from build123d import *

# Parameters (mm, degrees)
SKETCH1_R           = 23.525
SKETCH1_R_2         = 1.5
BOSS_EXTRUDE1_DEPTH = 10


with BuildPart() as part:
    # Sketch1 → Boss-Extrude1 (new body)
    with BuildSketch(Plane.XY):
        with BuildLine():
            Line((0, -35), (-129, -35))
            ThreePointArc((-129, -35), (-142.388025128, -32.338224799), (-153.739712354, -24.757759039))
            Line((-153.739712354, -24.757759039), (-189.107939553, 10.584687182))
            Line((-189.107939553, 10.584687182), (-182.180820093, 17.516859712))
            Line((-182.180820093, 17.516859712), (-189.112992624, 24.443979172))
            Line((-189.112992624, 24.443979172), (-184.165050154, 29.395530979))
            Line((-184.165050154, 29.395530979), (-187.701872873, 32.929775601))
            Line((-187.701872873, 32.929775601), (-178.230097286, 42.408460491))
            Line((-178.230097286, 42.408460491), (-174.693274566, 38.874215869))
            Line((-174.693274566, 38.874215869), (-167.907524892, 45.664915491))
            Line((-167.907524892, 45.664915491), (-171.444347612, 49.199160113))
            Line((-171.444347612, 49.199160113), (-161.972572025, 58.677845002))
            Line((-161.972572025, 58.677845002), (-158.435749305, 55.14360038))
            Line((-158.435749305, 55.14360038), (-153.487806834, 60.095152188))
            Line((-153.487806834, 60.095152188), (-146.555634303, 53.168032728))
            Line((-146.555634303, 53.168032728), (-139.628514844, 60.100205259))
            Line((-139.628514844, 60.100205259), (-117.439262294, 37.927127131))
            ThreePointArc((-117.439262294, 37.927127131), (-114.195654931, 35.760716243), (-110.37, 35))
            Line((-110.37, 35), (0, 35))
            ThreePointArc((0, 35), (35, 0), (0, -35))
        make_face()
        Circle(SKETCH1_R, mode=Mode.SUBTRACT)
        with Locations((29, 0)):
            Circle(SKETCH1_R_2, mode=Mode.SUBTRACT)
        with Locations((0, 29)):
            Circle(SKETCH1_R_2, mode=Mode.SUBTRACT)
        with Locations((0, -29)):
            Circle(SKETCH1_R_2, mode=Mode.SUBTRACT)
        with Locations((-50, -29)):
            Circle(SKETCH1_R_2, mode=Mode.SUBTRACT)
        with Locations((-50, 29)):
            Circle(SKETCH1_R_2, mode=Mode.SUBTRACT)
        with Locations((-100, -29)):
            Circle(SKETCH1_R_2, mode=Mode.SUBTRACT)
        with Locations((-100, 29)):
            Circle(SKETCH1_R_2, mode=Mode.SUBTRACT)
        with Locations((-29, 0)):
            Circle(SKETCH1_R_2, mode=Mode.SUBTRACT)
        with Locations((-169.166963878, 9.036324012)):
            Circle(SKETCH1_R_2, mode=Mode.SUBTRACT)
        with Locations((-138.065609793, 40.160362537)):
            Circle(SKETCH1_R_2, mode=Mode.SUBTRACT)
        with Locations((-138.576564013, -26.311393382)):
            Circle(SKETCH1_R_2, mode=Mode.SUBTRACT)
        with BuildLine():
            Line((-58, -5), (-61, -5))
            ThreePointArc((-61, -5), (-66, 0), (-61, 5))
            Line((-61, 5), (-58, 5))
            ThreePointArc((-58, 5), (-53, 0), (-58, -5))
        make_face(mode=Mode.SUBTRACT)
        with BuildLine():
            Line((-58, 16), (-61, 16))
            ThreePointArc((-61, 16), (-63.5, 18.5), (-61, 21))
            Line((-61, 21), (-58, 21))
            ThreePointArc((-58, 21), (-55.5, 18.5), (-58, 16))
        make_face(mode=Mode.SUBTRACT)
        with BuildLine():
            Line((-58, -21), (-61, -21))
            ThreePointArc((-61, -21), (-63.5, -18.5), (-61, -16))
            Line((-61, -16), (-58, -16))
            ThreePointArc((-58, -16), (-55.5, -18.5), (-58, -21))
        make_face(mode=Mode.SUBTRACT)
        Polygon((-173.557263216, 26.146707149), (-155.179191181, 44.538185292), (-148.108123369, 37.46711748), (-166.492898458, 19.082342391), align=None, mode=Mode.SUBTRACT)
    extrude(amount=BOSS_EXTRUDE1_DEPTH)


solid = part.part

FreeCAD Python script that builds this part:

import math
import FreeCAD as App
import Part
import Sketcher
from FreeCAD import Vector
Q = App.Units.Quantity


def add_polygon(sketch, points):
    """Adds a closed chain of lines whose ends are joined by coincident constraints."""
    first, n = sketch.GeometryCount, len(points)
    for a, b in zip(points, points[1:] + points[:1]):
        sketch.addGeometry(Part.LineSegment(App.Vector(*a, 0), App.Vector(*b, 0)), False)
    for i in range(n):
        sketch.addConstraint(Sketcher.Constraint("Coincident", first + i, 2, first + (i + 1) % n, 1))

doc = App.newDocument("Part")
body = doc.addObject("PartDesign::Body", "Body")

# Sketch on XY plane
sketch1 = body.newObject("Sketcher::SketchObject", "Sketch")
sketch1.AttachmentSupport = (doc.getObject("XY_Plane"), [""])
sketch1.MapMode = "FlatFace"
sketch1.addGeometry(Part.LineSegment(Vector(-129, -35, 0), Vector(0, -35, 0)), False)  # 0
sketch1.addGeometry(Part.ArcOfCircle(Part.Circle(Vector(0, 0, 0), Vector(0, 0, 1), 35), math.radians(-90), math.radians(90)), False)  # 1
sketch1.addGeometry(Part.LineSegment(Vector(0, 35, 0), Vector(-110.4, 35, 0)), False)  # 2
sketch1.addGeometry(Part.ArcOfCircle(Part.Circle(Vector(-110.4, 45, 0), Vector(0, 0, 1), 10), math.radians(-135), math.radians(-90)), False)  # 3
sketch1.addGeometry(Part.LineSegment(Vector(-117.4, 37.9, 0), Vector(-139.6, 60.1, 0)), False)  # 4
sketch1.addGeometry(Part.LineSegment(Vector(-139.6, 60.1, 0), Vector(-146.6, 53.2, 0)), False)  # 5
sketch1.addGeometry(Part.LineSegment(Vector(-146.6, 53.2, 0), Vector(-153.5, 60.1, 0)), False)  # 6
sketch1.addGeometry(Part.LineSegment(Vector(-153.5, 60.1, 0), Vector(-158.4, 55.1, 0)), False)  # 7
sketch1.addGeometry(Part.LineSegment(Vector(-158.4, 55.1, 0), Vector(-162, 58.7, 0)), False)  # 8
sketch1.addGeometry(Part.LineSegment(Vector(-162, 58.7, 0), Vector(-171.4, 49.2, 0)), False)  # 9
sketch1.addGeometry(Part.LineSegment(Vector(-171.4, 49.2, 0), Vector(-167.9, 45.7, 0)), False)  # 10
sketch1.addGeometry(Part.LineSegment(Vector(-167.9, 45.7, 0), Vector(-174.7, 38.9, 0)), False)  # 11
sketch1.addGeometry(Part.LineSegment(Vector(-174.7, 38.9, 0), Vector(-178.2, 42.4, 0)), False)  # 12
sketch1.addGeometry(Part.LineSegment(Vector(-178.2, 42.4, 0), Vector(-187.7, 32.9, 0)), False)  # 13
sketch1.addGeometry(Part.LineSegment(Vector(-187.7, 32.9, 0), Vector(-184.2, 29.4, 0)), False)  # 14
sketch1.addGeometry(Part.LineSegment(Vector(-184.2, 29.4, 0), Vector(-189.1, 24.4, 0)), False)  # 15
sketch1.addGeometry(Part.LineSegment(Vector(-189.1, 24.4, 0), Vector(-182.2, 17.5, 0)), False)  # 16
sketch1.addGeometry(Part.LineSegment(Vector(-182.2, 17.5, 0), Vector(-189.1, 10.6, 0)), False)  # 17
sketch1.addGeometry(Part.LineSegment(Vector(-189.1, 10.6, 0), Vector(-153.7, -24.8, 0)), False)  # 18
sketch1.addGeometry(Part.ArcOfCircle(Part.Circle(Vector(-129, 0, 0), Vector(0, 0, 1), 35), math.radians(-135), math.radians(-90)), False)  # 19
sketch1.addGeometry(Part.Circle(Vector(0, -29, 0), Vector(0, 0, 1), 1.5), False)  # 20
sketch1.addGeometry(Part.Circle(Vector(-50, -29, 0), Vector(0, 0, 1), 1.5), False)  # 21
sketch1.addGeometry(Part.LineSegment(Vector(-58, -21, 0), Vector(-61, -21, 0)), False)  # 22
sketch1.addGeometry(Part.ArcOfCircle(Part.Circle(Vector(-61, -18.5, 0), Vector(0, 0, 1), 2.5), math.radians(90), math.radians(270)), False)  # 23
sketch1.addGeometry(Part.LineSegment(Vector(-61, -16, 0), Vector(-58, -16, 0)), False)  # 24
sketch1.addGeometry(Part.ArcOfCircle(Part.Circle(Vector(-58, -18.5, 0), Vector(0, 0, 1), 2.5), math.radians(-90), math.radians(90)), False)  # 25
sketch1.addGeometry(Part.Circle(Vector(29, 0, 0), Vector(0, 0, 1), 1.5), False)  # 26
sketch1.addGeometry(Part.Circle(Vector(0, 0, 0), Vector(0, 0, 1), 23.5), False)  # 27
sketch1.addGeometry(Part.Circle(Vector(-29, 0, 0), Vector(0, 0, 1), 1.5), False)  # 28
sketch1.addGeometry(Part.LineSegment(Vector(-58, -5, 0), Vector(-61, -5, 0)), False)  # 29
sketch1.addGeometry(Part.ArcOfCircle(Part.Circle(Vector(-61, 0, 0), Vector(0, 0, 1), 5), math.radians(90), math.radians(270)), False)  # 30
sketch1.addGeometry(Part.LineSegment(Vector(-61, 5, 0), Vector(-58, 5, 0)), False)  # 31
sketch1.addGeometry(Part.ArcOfCircle(Part.Circle(Vector(-58, 0, 0), Vector(0, 0, 1), 5), math.radians(-90), math.radians(90)), False)  # 32
sketch1.addGeometry(Part.Circle(Vector(-100, -29, 0), Vector(0, 0, 1), 1.5), False)  # 33
sketch1.addGeometry(Part.Circle(Vector(-138.6, -26.3, 0), Vector(0, 0, 1), 1.5), False)  # 34
sketch1.addGeometry(Part.LineSegment(Vector(-58, 16, 0), Vector(-61, 16, 0)), False)  # 35
sketch1.addGeometry(Part.ArcOfCircle(Part.Circle(Vector(-61, 18.5, 0), Vector(0, 0, 1), 2.5), math.radians(90), math.radians(270)), False)  # 36
sketch1.addGeometry(Part.LineSegment(Vector(-61, 21, 0), Vector(-58, 21, 0)), False)  # 37
sketch1.addGeometry(Part.ArcOfCircle(Part.Circle(Vector(-58, 18.5, 0), Vector(0, 0, 1), 2.5), math.radians(-90), math.radians(90)), False)  # 38
sketch1.addGeometry(Part.Circle(Vector(0, 29, 0), Vector(0, 0, 1), 1.5), False)  # 39
sketch1.addGeometry(Part.Circle(Vector(-50, 29, 0), Vector(0, 0, 1), 1.5), False)  # 40
sketch1.addGeometry(Part.Circle(Vector(-169.2, 9, 0), Vector(0, 0, 1), 1.5), False)  # 41
sketch1.addGeometry(Part.Circle(Vector(-100, 29, 0), Vector(0, 0, 1), 1.5), False)  # 42
add_polygon(sketch1, [(-173.6, 26.1), (-155.2, 44.5), (-148.1, 37.5), (-166.5, 19.1)])  # lines 43-46
sketch1.addGeometry(Part.Circle(Vector(-138.1, 40.2, 0), Vector(0, 0, 1), 1.5), False)  # 47
sketch1.addConstraint([
    Sketcher.Constraint("Tangent", 0, 2, 1, 1),
    Sketcher.Constraint("Tangent", 1, 2, 2, 1),
    Sketcher.Constraint("Tangent", 2, 2, 3, 2),
    Sketcher.Constraint("Coincident", 3, 1, 4, 1),
    Sketcher.Constraint("Coincident", 4, 2, 5, 1),
    Sketcher.Constraint("Coincident", 5, 2, 6, 1),
    Sketcher.Constraint("Coincident", 6, 2, 7, 1),
    Sketcher.Constraint("Coincident", 7, 2, 8, 1),
    Sketcher.Constraint("Coincident", 8, 2, 9, 1),
    Sketcher.Constraint("Coincident", 9, 2, 10, 1),
    Sketcher.Constraint("Coincident", 10, 2, 11, 1),
    Sketcher.Constraint("Coincident", 11, 2, 12, 1),
    Sketcher.Constraint("Coincident", 12, 2, 13, 1),
    Sketcher.Constraint("Coincident", 13, 2, 14, 1),
    Sketcher.Constraint("Coincident", 14, 2, 15, 1),
    Sketcher.Constraint("Coincident", 15, 2, 16, 1),
    Sketcher.Constraint("Coincident", 16, 2, 17, 1),
    Sketcher.Constraint("Coincident", 17, 2, 18, 1),
    Sketcher.Constraint("Tangent", 18, 2, 19, 1),
    Sketcher.Constraint("Tangent", 19, 2, 0, 1),
    Sketcher.Constraint("Tangent", 22, 2, 23, 2),
    Sketcher.Constraint("Tangent", 23, 1, 24, 1),
    Sketcher.Constraint("Tangent", 24, 2, 25, 2),
    Sketcher.Constraint("Tangent", 25, 1, 22, 1),
    Sketcher.Constraint("Tangent", 29, 2, 30, 2),
    Sketcher.Constraint("Tangent", 30, 1, 31, 1),
    Sketcher.Constraint("Tangent", 31, 2, 32, 2),
    Sketcher.Constraint("Tangent", 32, 1, 29, 1),
    Sketcher.Constraint("Tangent", 35, 2, 36, 2),
    Sketcher.Constraint("Tangent", 36, 1, 37, 1),
    Sketcher.Constraint("Tangent", 37, 2, 38, 2),
    Sketcher.Constraint("Tangent", 38, 1, 35, 1),
    Sketcher.Constraint("Horizontal", 0),
    Sketcher.Constraint("Horizontal", 2),
    Sketcher.Constraint("Horizontal", 22),
    Sketcher.Constraint("Horizontal", 24),
    Sketcher.Constraint("Horizontal", 29),
    Sketcher.Constraint("Horizontal", 31),
    Sketcher.Constraint("Horizontal", 35),
    Sketcher.Constraint("Horizontal", 37),
    Sketcher.Constraint("Coincident", 1, 3, -1, 1),
    Sketcher.Constraint("Coincident", 27, 3, -1, 1),
    Sketcher.Constraint("Equal", 1, 19),
    Sketcher.Constraint("Equal", 20, 21),
    Sketcher.Constraint("Equal", 21, 26),
    Sketcher.Constraint("Equal", 26, 28),
    Sketcher.Constraint("Equal", 28, 33),
    Sketcher.Constraint("Equal", 33, 34),
    Sketcher.Constraint("Equal", 25, 36),
    Sketcher.Constraint("Equal", 34, 39),
    Sketcher.Constraint("Equal", 39, 40),
    Sketcher.Constraint("Equal", 40, 41),
    Sketcher.Constraint("Equal", 41, 42),
    Sketcher.Constraint("Equal", 42, 47),
    Sketcher.Constraint("Symmetric", 26, 3, 28, 3, -1, 1),
    Sketcher.Constraint("Symmetric", 20, 3, 39, 3, -1, 1),
    Sketcher.Constraint("Symmetric", 23, 3, 36, 3, -1),
    Sketcher.Constraint("Symmetric", 21, 3, 40, 3, -1),
    Sketcher.Constraint("Symmetric", 33, 3, 42, 3, -1),
    Sketcher.Constraint("PointOnObject", 20, 3, -2),
    Sketcher.Constraint("PointOnObject", 26, 3, -1),
    Sketcher.Constraint("PointOnObject", 30, 3, -1),
    Sketcher.Constraint("Perpendicular", 4, 5),
    Sketcher.Constraint("Perpendicular", 5, 6),
    Sketcher.Constraint("Perpendicular", 6, 7),
    Sketcher.Constraint("Perpendicular", 7, 8),
    Sketcher.Constraint("Perpendicular", 8, 9),
    Sketcher.Constraint("Perpendicular", 9, 10),
    Sketcher.Constraint("Perpendicular", 10, 11),
    Sketcher.Constraint("Perpendicular", 11, 12),
    Sketcher.Constraint("Perpendicular", 12, 13),
    Sketcher.Constraint("Perpendicular", 13, 14),
    Sketcher.Constraint("Perpendicular", 14, 15),
    Sketcher.Constraint("Perpendicular", 15, 16),
    Sketcher.Constraint("Perpendicular", 16, 17),
    Sketcher.Constraint("Perpendicular", 17, 18),
    Sketcher.Constraint("Perpendicular", 18, 43),
    Sketcher.Constraint("Perpendicular", 44, 45),
    Sketcher.Constraint("Perpendicular", 45, 46),
    Sketcher.Constraint("Horizontal", 20, 3, 21, 3),
    Sketcher.Constraint("Horizontal", 21, 3, 33, 3),
    Sketcher.Constraint("Vertical", 23, 3, 30, 3),
    Sketcher.Constraint("Vertical", 25, 3, 32, 3),
    Sketcher.Constraint("Vertical", 32, 3, 38, 3),
    Sketcher.Constraint("Equal", 5, 6),
    Sketcher.Constraint("Equal", 8, 10),
    Sketcher.Constraint("Equal", 10, 12),
    Sketcher.Constraint("Equal", 9, 13),
    Sketcher.Constraint("Equal", 12, 14),
    Sketcher.Constraint("Equal", 7, 15),
    Sketcher.Constraint("Equal", 6, 16),
    Sketcher.Constraint("Equal", 16, 17),
    Sketcher.Constraint("Diameter", 20, Q("3 mm")),
    Sketcher.Constraint("Radius", 1, Q("35 mm")),
    Sketcher.Constraint("Radius", 3, Q("10 mm")),
    Sketcher.Constraint("Radius", 30, Q("5 mm")),
    Sketcher.Constraint("Radius", 23, Q("2.5 mm")),
    Sketcher.Constraint("Diameter", 27, Q("47.05 mm")),
    Sketcher.Constraint("DistanceX", 0, 1, 0, 2, Q("129 mm")),
    Sketcher.Constraint("DistanceX", 22, 2, 22, 1, Q("3 mm")),
    Sketcher.Constraint("Angle", 44, Q("-45 deg")),
    Sketcher.Constraint("Distance", 7, Q("7 mm")),
    Sketcher.Constraint("Distance", 8, Q("5 mm")),
    Sketcher.Constraint("Distance", 18, Q("50 mm")),
    Sketcher.Constraint("Distance", 43, Q("26 mm")),
    Sketcher.Constraint("Distance", 44, Q("10 mm")),
    Sketcher.Constraint("DistanceY", 20, 3, -1, 1, Q("29 mm")),
    Sketcher.Constraint("DistanceX", 21, 3, -1, 1, Q("50 mm")),
    Sketcher.Constraint("DistanceX", 23, 3, -1, 1, Q("61 mm")),
    Sketcher.Constraint("DistanceX", -1, 1, 26, 3, Q("29 mm")),
    Sketcher.Constraint("DistanceX", 33, 3, -1, 1, Q("100 mm")),
    Sketcher.Constraint("DistanceY", 22, 2, -1, 1, Q("21 mm")),
    Sketcher.Constraint("Distance", 5, Q("9.8 mm")),
    Sketcher.Constraint("Distance", 9, Q("13.4 mm")),
    Sketcher.Constraint("Distance", 11, Q("9.6 mm")),
    Sketcher.Constraint("DistanceX", 2, 2, 2, 1, Q("110.37 mm")),
    Sketcher.Constraint("DistanceX", 45, 2, -1, 1, Q("166.492898 mm")),
    Sketcher.Constraint("DistanceX", 41, 3, 34, 3, Q("30.5904 mm")),
    Sketcher.Constraint("DistanceY", 44, 2, 10, 2, Q("8.197798 mm")),
    Sketcher.Constraint("DistanceX", 47, 3, -1, 1, Q("138.06561 mm")),
    Sketcher.Constraint("DistanceY", 41, 3, 47, 3, Q("31.124039 mm")),
    Sketcher.Constraint("DistanceY", 3, 1, 4, 2, Q("22.173078 mm")),
    Sketcher.Constraint("DistanceY", 47, 3, 5, 2, Q("13.00767 mm")),
    Sketcher.Constraint("DistanceX", 13, 2, 41, 3, Q("18.534909 mm")),
    Sketcher.Constraint("DistanceY", 34, 3, -1, 1, Q("26.311393 mm")),
])
pad1 = body.newObject("PartDesign::Pad", "Pad")
pad1.Profile = sketch1
pad1.Length = 10

doc.recompute()
